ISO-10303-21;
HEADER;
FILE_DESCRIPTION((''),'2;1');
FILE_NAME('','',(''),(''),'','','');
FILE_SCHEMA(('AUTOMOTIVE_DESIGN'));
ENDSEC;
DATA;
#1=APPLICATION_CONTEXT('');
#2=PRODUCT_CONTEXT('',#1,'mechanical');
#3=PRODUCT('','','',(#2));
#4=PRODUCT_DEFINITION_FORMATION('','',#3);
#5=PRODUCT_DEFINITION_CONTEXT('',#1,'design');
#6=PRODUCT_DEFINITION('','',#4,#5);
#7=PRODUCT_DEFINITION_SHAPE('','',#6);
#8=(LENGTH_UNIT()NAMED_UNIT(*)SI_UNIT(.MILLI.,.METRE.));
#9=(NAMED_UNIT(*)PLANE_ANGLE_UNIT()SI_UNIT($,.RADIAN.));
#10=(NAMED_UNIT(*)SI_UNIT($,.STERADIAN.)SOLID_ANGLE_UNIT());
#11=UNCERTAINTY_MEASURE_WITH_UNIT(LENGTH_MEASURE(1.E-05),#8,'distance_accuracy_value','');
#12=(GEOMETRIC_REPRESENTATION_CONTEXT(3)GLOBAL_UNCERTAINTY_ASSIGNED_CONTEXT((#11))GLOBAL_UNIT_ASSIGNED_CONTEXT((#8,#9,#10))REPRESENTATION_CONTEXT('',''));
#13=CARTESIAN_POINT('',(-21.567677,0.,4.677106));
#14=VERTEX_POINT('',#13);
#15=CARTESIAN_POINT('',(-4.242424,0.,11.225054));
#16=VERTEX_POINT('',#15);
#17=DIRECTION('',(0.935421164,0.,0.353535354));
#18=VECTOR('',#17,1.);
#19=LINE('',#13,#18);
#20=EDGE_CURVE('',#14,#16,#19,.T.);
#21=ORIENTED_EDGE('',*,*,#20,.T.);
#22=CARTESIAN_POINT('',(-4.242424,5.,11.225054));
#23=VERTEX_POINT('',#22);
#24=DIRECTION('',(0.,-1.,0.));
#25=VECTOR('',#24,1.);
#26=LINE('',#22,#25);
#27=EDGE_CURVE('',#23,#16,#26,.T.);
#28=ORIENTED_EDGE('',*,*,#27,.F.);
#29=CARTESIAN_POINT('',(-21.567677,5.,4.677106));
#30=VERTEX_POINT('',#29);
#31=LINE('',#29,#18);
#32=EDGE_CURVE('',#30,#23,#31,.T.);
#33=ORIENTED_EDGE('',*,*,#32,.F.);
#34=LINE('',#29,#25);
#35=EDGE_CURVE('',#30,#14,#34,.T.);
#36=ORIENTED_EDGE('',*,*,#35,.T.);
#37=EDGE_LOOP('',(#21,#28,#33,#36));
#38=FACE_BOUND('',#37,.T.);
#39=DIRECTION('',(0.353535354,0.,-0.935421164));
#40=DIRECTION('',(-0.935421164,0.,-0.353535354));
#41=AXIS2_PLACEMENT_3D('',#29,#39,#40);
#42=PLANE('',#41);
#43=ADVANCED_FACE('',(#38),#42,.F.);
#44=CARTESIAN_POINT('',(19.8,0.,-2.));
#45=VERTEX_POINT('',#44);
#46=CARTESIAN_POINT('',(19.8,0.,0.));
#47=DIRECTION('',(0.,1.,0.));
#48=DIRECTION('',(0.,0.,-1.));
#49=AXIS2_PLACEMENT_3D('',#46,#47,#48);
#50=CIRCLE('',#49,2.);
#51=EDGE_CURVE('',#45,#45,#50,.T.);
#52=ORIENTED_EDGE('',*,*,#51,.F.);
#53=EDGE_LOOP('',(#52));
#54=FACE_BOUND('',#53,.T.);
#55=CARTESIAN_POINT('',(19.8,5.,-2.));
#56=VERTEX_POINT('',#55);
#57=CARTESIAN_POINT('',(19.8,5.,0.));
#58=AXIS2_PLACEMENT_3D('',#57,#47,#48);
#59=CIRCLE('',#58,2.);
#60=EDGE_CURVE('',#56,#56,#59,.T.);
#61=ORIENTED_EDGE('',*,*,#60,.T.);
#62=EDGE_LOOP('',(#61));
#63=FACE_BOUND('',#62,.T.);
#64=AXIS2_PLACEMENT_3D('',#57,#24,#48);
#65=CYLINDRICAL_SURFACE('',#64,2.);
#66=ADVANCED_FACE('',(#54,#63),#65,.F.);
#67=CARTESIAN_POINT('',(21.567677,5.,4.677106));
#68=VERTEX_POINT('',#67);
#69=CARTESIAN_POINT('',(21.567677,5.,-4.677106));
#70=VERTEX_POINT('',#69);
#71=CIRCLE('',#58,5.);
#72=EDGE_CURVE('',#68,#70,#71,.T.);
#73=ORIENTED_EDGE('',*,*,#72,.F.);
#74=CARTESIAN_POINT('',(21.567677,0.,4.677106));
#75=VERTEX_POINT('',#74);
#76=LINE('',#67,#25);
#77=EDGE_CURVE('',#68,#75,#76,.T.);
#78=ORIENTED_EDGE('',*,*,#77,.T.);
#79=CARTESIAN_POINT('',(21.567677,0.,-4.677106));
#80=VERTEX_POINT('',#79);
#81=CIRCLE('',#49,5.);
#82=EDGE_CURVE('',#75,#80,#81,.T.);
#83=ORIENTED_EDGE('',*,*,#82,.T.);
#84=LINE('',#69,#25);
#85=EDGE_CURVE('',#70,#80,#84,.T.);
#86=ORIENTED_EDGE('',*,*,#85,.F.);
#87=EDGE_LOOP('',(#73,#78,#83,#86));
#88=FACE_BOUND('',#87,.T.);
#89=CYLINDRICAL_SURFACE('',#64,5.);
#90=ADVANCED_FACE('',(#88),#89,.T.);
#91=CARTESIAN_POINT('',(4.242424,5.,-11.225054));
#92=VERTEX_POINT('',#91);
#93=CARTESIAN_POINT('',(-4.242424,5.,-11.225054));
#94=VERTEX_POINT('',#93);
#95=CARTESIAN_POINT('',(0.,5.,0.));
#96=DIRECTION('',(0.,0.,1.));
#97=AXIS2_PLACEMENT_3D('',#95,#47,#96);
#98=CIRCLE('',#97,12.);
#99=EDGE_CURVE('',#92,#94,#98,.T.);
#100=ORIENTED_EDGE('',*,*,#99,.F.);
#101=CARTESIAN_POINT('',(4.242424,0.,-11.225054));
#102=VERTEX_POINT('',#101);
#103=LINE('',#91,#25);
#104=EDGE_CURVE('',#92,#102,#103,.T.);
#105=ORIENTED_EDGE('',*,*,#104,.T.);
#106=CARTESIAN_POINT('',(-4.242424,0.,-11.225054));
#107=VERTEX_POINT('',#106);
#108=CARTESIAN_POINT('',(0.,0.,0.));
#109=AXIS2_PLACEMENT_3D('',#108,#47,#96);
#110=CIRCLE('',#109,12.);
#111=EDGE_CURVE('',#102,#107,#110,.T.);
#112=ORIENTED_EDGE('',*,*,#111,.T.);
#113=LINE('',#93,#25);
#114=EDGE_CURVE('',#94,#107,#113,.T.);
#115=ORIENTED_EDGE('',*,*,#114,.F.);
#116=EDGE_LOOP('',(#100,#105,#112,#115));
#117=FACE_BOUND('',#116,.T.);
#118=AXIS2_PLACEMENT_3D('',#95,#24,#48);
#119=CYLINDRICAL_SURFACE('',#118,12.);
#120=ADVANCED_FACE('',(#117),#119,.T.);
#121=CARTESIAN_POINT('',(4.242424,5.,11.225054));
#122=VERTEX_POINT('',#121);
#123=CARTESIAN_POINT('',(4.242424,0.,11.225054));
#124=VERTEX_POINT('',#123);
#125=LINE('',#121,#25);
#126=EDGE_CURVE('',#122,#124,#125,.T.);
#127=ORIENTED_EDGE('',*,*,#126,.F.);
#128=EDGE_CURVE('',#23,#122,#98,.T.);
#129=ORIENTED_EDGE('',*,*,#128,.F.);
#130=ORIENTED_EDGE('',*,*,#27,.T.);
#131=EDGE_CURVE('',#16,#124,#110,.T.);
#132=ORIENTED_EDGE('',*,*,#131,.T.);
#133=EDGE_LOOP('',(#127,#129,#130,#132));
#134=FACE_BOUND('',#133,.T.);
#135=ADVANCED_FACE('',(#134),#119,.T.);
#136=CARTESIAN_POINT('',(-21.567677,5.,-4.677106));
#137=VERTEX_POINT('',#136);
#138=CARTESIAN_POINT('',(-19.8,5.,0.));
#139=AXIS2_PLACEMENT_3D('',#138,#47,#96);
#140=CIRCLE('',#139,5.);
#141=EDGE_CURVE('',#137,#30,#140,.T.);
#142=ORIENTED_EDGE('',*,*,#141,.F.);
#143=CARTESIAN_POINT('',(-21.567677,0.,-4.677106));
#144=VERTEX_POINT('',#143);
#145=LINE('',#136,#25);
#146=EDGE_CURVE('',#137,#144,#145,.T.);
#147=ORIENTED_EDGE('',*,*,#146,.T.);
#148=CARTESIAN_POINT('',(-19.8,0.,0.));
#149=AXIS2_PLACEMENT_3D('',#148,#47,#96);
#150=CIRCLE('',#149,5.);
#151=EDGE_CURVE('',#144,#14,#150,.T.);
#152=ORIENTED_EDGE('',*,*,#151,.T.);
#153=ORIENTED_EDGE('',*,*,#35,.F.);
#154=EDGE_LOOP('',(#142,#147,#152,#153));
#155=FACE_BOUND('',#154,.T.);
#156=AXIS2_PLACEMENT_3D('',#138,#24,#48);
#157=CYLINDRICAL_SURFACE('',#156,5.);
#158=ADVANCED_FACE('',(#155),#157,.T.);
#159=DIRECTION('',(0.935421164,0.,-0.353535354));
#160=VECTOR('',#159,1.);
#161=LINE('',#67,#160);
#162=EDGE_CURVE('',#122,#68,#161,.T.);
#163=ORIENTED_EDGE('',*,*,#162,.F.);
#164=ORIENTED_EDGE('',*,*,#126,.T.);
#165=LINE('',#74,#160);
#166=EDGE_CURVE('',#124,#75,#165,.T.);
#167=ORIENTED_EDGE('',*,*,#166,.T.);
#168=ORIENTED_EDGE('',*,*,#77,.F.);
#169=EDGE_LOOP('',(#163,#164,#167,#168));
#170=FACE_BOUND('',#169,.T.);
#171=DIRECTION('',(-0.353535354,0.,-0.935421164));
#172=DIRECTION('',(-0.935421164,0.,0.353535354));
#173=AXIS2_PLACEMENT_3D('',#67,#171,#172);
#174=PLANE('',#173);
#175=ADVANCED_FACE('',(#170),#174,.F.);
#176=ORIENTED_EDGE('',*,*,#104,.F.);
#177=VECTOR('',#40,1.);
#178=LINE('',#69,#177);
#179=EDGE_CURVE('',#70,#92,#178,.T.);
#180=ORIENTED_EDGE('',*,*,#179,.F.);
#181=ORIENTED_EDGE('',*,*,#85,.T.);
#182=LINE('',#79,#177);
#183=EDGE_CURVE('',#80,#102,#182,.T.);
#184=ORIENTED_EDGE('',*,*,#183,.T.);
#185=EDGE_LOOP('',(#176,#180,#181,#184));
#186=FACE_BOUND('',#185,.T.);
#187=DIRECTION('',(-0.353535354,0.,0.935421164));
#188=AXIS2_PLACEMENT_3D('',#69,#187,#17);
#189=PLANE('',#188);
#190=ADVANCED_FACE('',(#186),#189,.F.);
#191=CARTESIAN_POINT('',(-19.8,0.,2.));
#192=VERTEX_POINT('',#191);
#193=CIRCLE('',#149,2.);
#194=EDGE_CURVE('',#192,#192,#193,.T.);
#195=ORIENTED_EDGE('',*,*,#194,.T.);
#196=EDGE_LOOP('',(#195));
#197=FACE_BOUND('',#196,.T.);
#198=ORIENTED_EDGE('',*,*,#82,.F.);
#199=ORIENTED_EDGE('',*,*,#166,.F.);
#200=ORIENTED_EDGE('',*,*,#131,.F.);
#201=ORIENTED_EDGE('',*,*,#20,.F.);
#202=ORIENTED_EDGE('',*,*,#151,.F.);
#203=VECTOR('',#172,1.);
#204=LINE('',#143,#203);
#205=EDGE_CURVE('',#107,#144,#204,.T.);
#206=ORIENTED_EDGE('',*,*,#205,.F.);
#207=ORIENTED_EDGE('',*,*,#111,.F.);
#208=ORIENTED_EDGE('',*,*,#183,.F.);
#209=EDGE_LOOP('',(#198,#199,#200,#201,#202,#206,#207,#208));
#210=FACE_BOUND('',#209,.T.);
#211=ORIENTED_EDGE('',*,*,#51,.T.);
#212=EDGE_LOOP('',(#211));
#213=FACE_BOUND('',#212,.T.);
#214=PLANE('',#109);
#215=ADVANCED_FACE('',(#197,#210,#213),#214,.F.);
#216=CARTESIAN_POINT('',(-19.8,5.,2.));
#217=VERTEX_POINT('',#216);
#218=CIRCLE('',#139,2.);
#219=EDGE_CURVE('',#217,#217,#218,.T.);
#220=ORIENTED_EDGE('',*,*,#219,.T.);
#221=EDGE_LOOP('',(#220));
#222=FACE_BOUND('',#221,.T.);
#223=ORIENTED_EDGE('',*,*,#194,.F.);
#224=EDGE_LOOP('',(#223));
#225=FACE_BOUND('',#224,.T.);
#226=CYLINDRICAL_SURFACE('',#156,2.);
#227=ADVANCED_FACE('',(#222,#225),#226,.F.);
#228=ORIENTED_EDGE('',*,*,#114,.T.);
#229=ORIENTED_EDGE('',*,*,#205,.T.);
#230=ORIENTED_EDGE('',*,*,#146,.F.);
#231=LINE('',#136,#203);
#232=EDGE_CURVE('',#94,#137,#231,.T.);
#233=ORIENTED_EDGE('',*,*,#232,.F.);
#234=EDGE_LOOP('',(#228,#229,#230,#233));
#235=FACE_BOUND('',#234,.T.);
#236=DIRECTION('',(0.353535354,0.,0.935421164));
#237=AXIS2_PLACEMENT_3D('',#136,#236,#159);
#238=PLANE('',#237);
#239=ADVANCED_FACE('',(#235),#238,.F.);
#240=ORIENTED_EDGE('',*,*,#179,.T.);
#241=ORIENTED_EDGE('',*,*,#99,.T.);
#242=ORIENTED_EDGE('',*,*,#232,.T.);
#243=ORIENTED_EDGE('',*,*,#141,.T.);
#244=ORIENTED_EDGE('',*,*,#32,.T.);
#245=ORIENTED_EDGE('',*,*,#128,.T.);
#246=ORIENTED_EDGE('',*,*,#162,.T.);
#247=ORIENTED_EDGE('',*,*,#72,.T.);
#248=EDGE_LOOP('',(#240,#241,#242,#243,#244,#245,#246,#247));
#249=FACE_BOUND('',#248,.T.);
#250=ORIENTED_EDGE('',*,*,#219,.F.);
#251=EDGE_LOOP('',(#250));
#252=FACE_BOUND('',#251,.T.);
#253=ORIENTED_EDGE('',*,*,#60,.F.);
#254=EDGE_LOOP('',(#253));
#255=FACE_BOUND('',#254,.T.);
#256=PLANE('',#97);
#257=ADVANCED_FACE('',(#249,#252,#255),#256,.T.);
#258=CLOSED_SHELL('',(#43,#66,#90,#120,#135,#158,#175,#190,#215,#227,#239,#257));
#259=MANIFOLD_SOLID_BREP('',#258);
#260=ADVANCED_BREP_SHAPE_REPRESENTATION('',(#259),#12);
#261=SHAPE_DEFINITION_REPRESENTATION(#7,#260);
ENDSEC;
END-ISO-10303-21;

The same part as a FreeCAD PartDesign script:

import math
import FreeCAD as App
import Part
import Sketcher

V = App.Vector
Q = App.Units.Quantity

doc = App.newDocument("Part")
body = doc.addObject("PartDesign::Body", "Body")

# Sketch on XZ plane
sketch1 = doc.addObject("Sketcher::SketchObject", "Sketch")
body.addObject(sketch1)
sketch1.AttachmentSupport = (doc.XZ_Plane, [""])
sketch1.MapMode = "FlatFace"
sketch1.addGeometry([
    Part.LineSegment(V(-4.242424, -11.225054, 0), V(-21.567677, -4.677106, 0)),  # 0
    Part.ArcOfCircle(Part.Circle(V(-19.8, 0, 0), V(0, 0, 1), 5), math.radians(110.703706), math.radians(249.296294)),  # 1
    Part.LineSegment(V(-21.567677, 4.677106, 0), V(-4.242424, 11.225054, 0)),  # 2
    Part.ArcOfCircle(Part.Circle(V(0, 0, 0), V(0, 0, 1), 12), math.radians(69.296294), math.radians(110.703706)),  # 3
    Part.LineSegment(V(4.242424, 11.225054, 0), V(21.567677, 4.677106, 0)),  # 4
    Part.ArcOfCircle(Part.Circle(V(19.8, 0, 0), V(0, 0, 1), 5), math.radians(-69.296294), math.radians(69.296294)),  # 5
    Part.LineSegment(V(21.567677, -4.677106, 0), V(4.242424, -11.225054, 0)),  # 6
    Part.ArcOfCircle(Part.Circle(V(0, 0, 0), V(0, 0, 1), 12), math.radians(-110.703706), math.radians(-69.296294)),  # 7
    Part.Circle(V(19.8, 0, 0), V(0, 0, 1), 2),  # 8
    Part.Circle(V(-19.8, 0, 0), V(0, 0, 1), 2),  # 9
], False)
sketch1.addConstraint([
    Sketcher.Constraint("Tangent", 0, 2, 1, 2),
    Sketcher.Constraint("Tangent", 1, 1, 2, 1),
    Sketcher.Constraint("Tangent", 2, 2, 3, 2),
    Sketcher.Constraint("Tangent", 3, 1, 4, 1),
    Sketcher.Constraint("Tangent", 4, 2, 5, 2),
    Sketcher.Constraint("Tangent", 5, 1, 6, 1),
    Sketcher.Constraint("Tangent", 6, 2, 7, 2),
    Sketcher.Constraint("Tangent", 7, 1, 0, 1),
    Sketcher.Constraint("Coincident", 3, 3, -1, 1),
    Sketcher.Constraint("Coincident", 7, 3, -1, 1),
    Sketcher.Constraint("Coincident", 8, 3, 5, 3),
    Sketcher.Constraint("Coincident", 9, 3, 1, 3),
    Sketcher.Constraint("Equal", 1, 5),
    Sketcher.Constraint("Equal", 3, 7),
    Sketcher.Constraint("Equal", 8, 9),
    Sketcher.Constraint("Symmetric", 1, 3, 5, 3, -1, 1),
    Sketcher.Constraint("PointOnObject", 1, 3, -1),
    Sketcher.Constraint("Diameter", 8, Q("4 mm")),
    Sketcher.Constraint("Radius", 1, Q("5 mm")),
    Sketcher.Constraint("Radius", 3, Q("12 mm")),
    Sketcher.Constraint("DistanceX", 1, 3, -1, 1, Q("19.8 mm")),
])
pad1 = doc.addObject("PartDesign::Pad", "Pad")
body.addObject(pad1)
pad1.Profile = sketch1
pad1.Length = 5
pad1.Reversed = True

doc.recompute()
